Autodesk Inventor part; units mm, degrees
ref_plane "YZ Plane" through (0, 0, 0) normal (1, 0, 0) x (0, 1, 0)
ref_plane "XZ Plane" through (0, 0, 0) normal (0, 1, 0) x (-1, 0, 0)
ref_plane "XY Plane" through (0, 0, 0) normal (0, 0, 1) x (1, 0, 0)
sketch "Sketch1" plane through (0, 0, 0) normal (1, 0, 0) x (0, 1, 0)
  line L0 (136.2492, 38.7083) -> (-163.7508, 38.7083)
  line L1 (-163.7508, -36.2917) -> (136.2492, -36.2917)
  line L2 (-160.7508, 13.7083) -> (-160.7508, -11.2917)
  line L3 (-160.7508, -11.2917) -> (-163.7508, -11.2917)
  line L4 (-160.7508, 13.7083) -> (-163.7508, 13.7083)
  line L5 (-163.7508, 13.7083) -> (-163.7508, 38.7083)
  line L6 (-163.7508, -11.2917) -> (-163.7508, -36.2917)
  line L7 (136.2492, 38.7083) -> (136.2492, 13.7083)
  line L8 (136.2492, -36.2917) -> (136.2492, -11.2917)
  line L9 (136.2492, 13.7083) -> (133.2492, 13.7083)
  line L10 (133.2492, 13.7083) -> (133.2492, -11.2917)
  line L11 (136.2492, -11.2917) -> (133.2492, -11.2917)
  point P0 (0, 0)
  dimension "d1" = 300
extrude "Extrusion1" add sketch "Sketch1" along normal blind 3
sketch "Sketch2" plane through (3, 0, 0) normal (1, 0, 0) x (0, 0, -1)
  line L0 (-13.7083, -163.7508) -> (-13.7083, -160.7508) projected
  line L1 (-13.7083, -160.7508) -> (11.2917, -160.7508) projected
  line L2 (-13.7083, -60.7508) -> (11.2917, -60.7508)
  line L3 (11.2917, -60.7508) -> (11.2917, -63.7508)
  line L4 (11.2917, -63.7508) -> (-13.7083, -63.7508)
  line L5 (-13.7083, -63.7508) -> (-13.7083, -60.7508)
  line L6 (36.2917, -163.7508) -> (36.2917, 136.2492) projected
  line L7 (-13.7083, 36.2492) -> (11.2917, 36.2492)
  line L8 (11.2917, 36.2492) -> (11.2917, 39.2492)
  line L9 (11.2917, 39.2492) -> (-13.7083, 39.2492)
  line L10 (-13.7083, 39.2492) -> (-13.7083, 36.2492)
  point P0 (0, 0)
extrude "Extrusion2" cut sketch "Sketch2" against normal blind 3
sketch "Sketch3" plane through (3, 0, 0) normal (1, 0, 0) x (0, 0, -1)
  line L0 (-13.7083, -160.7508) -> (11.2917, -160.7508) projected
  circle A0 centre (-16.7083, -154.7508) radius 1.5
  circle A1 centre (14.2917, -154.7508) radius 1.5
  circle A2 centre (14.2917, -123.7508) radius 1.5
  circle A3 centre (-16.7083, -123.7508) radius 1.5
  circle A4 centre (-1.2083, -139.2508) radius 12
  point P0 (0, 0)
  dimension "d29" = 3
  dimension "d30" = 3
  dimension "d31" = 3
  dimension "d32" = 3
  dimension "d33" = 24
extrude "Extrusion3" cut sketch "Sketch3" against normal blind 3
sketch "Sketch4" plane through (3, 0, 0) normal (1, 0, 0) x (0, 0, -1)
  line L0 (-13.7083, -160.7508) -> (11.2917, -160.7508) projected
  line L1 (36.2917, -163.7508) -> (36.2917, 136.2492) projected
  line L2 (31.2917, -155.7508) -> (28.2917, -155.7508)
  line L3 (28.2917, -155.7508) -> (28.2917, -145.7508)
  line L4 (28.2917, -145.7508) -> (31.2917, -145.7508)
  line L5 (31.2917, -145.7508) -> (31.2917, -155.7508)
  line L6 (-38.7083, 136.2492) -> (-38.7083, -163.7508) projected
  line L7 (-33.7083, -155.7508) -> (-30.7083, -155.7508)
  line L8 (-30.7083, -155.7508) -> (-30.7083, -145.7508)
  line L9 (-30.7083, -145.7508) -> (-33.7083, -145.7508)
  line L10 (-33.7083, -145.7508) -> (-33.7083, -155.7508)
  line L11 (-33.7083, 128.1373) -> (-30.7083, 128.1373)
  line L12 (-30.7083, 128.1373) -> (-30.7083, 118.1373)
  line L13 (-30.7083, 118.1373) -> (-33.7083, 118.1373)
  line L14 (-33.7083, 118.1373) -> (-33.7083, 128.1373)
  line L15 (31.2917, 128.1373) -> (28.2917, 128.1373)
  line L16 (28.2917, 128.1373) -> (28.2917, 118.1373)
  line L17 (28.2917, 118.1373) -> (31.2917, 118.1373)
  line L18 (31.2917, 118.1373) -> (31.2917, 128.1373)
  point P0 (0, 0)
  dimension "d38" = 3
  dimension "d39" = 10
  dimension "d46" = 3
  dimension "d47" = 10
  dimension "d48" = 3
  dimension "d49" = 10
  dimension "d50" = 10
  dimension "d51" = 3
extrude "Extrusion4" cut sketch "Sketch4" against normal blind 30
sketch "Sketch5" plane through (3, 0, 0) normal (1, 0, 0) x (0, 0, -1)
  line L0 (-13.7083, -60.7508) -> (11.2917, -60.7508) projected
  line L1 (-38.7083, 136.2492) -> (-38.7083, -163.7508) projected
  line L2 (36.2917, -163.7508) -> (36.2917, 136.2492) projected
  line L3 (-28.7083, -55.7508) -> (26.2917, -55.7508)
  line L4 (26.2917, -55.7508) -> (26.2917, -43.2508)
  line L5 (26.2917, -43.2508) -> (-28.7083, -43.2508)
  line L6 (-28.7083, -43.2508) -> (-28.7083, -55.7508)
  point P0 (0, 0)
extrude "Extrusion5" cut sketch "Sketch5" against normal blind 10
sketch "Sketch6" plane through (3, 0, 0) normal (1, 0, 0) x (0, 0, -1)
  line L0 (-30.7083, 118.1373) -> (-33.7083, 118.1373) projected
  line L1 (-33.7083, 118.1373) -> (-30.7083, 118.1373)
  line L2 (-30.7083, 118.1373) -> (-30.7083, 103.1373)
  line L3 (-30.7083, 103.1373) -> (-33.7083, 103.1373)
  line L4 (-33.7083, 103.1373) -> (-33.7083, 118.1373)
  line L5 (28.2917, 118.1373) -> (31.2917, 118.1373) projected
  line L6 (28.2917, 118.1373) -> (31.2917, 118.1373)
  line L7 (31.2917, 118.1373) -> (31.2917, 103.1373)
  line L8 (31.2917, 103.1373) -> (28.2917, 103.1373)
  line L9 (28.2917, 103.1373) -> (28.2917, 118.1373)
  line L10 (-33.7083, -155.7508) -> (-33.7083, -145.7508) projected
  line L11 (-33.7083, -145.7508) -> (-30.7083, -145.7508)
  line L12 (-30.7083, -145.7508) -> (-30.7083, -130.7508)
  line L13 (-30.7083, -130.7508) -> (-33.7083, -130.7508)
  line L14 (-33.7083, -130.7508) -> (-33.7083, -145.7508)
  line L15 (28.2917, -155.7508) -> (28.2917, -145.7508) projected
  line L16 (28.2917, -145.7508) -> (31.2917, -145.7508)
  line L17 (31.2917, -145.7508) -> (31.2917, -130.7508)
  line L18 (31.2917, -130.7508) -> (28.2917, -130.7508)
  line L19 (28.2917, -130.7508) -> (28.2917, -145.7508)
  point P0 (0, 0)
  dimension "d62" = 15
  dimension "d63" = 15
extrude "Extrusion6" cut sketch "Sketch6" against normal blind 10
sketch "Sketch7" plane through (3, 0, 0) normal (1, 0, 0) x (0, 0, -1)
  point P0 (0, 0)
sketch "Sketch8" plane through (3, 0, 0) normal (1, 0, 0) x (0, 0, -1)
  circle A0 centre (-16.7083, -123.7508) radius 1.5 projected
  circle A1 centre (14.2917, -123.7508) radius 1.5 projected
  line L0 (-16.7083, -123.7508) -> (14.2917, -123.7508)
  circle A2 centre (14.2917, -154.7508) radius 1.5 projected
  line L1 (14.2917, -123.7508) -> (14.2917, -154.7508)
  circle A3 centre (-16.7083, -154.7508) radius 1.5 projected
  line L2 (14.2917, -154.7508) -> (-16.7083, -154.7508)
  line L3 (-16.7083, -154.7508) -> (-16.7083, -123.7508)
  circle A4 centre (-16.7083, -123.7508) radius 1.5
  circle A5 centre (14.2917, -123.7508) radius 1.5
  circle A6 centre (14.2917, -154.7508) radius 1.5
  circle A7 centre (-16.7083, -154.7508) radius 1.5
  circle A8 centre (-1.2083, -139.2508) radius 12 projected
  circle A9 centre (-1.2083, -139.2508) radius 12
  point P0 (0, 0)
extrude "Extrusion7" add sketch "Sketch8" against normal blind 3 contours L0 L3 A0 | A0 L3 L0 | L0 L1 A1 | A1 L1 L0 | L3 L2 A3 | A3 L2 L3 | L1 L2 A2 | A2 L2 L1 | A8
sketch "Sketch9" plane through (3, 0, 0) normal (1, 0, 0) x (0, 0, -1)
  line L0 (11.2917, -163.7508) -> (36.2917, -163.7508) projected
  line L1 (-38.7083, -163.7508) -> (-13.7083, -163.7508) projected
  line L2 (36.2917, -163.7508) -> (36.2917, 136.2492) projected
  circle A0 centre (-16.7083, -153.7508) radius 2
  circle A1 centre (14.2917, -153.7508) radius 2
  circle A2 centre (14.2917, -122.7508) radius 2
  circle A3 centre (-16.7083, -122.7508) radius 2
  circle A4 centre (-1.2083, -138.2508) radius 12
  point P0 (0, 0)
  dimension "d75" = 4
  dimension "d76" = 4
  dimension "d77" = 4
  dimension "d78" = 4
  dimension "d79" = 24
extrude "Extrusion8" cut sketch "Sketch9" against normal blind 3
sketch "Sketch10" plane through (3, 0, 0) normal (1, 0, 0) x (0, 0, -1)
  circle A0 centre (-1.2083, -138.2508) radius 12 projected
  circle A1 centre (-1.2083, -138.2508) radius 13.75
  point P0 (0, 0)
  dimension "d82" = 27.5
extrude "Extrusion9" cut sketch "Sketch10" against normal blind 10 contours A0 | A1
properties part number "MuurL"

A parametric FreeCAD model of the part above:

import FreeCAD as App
import Part
import Sketcher


def add_polygon(sketch, points):
    """Adds a closed chain of lines whose ends are joined by coincident constraints."""
    first, n = sketch.GeometryCount, len(points)
    for a, b in zip(points, points[1:] + points[:1]):
        sketch.addGeometry(Part.LineSegment(App.Vector(*a, 0), App.Vector(*b, 0)), False)
    for i in range(n):
        sketch.addConstraint(Sketcher.Constraint("Coincident", first + i, 2, first + (i + 1) % n, 1))

doc = App.newDocument("Part")
body = doc.addObject("PartDesign::Body", "Body")

# Sketch on YZ plane
sketch1 = body.newObject("Sketcher::SketchObject", "Sketch")
sketch1.AttachmentSupport = (doc.getObject("YZ_Plane"), [""])
sketch1.MapMode = "FlatFace"
add_polygon(sketch1, [(136.2, 13.7), (136.2, 38.7), (-163.8, 38.7), (-163.8, 13.7), (-160.8, 13.7), (-160.8, -11.3), (-163.8, -11.3), (-163.8, -36.3), (136.2, -36.3), (136.2, -11.3), (133.2, -11.3), (133.2, 13.7)])  # lines 0-11
sketch1.addConstraint(Sketcher.Constraint("Vertical", 0))
sketch1.addConstraint(Sketcher.Constraint("Horizontal", 1))
sketch1.addConstraint(Sketcher.Constraint("Vertical", 2))
sketch1.addConstraint(Sketcher.Constraint("Horizontal", 3))
sketch1.addConstraint(Sketcher.Constraint("Vertical", 4))
sketch1.addConstraint(Sketcher.Constraint("Horizontal", 5))
sketch1.addConstraint(Sketcher.Constraint("Vertical", 6))
sketch1.addConstraint(Sketcher.Constraint("Horizontal", 7))
sketch1.addConstraint(Sketcher.Constraint("Vertical", 8))
sketch1.addConstraint(Sketcher.Constraint("Horizontal", 9))
sketch1.addConstraint(Sketcher.Constraint("Vertical", 10))
sketch1.addConstraint(Sketcher.Constraint("Horizontal", 11))
sketch1.addConstraint(Sketcher.Constraint("Horizontal", 5, 2, 8, 2))
sketch1.addConstraint(Sketcher.Constraint("Horizontal", 3, 2, 10, 2))
sketch1.addConstraint(Sketcher.Constraint("Vertical", 2, 2, 5, 2))
sketch1.addConstraint(Sketcher.Constraint("Vertical", 0, 2, 7, 2))
sketch1.addConstraint(Sketcher.Constraint("Equal", 5, 9))
sketch1.addConstraint(Sketcher.Constraint("Equal", 2, 4))
sketch1.addConstraint(Sketcher.Constraint("Equal", 4, 6))
sketch1.addConstraint(Sketcher.Constraint("DistanceX", 1, 2, 1, 1, 300.0))
sketch1.addConstraint(Sketcher.Constraint("DistanceX", 3, 1, 3, 2, 3.0))
sketch1.addConstraint(Sketcher.Constraint("DistanceY", 0, 1, 0, 2, 25.0))
sketch1.addConstraint(Sketcher.Constraint("DistanceX", -1, 1, 0, 2, 136.2492))
sketch1.addConstraint(Sketcher.Constraint("DistanceY", -1, 1, 0, 2, 38.7083))
pad1 = body.newObject("PartDesign::Pad", "Pad")
pad1.Profile = sketch1
pad1.Length = 3

# Sketch on YZ plane
sketch2 = body.newObject("Sketcher::SketchObject", "Sketch001")
sketch2.AttachmentSupport = (doc.getObject("YZ_Plane"), [""])
sketch2.MapMode = "FlatFace"
sketch2.AttachmentOffset = App.Placement(App.Vector(0, 0, 3), App.Rotation())
add_polygon(sketch2, [(-60.8, -11.3), (-60.8, 13.7), (-63.8, 13.7), (-63.8, -11.3)])  # lines 0-3
add_polygon(sketch2, [(39.2, 13.7), (36.2, 13.7), (36.2, -11.3), (39.2, -11.3)])  # lines 4-7
sketch2.addConstraint(Sketcher.Constraint("Vertical", 0))
sketch2.addConstraint(Sketcher.Constraint("Horizontal", 1))
sketch2.addConstraint(Sketcher.Constraint("Vertical", 2))
sketch2.addConstraint(Sketcher.Constraint("Horizontal", 3))
sketch2.addConstraint(Sketcher.Constraint("Horizontal", 4))
sketch2.addConstraint(Sketcher.Constraint("Vertical", 5))
sketch2.addConstraint(Sketcher.Constraint("Horizontal", 6))
sketch2.addConstraint(Sketcher.Constraint("Vertical", 7))
sketch2.addConstraint(Sketcher.Constraint("Horizontal", 1, 2, 4, 2))
sketch2.addConstraint(Sketcher.Constraint("Horizontal", 3, 2, 5, 2))
sketch2.addConstraint(Sketcher.Constraint("Equal", 3, 4))
sketch2.addConstraint(Sketcher.Constraint("DistanceX", 1, 2, 1, 1, 3.0))
sketch2.addConstraint(Sketcher.Constraint("DistanceY", 0, 1, 0, 2, 25.0))
sketch2.addConstraint(Sketcher.Constraint("DistanceX", 0, 2, 4, 2, 97.0))
sketch2.addConstraint(Sketcher.Constraint("DistanceX", 0, 2, -1, 1, 60.7508))
sketch2.addConstraint(Sketcher.Constraint("DistanceY", -1, 1, 0, 2, 13.7083))
pocket1 = body.newObject("PartDesign::Pocket", "Pocket")
pocket1.Profile = sketch2
pocket1.Length = 3

# Sketch on YZ plane
sketch3 = body.newObject("Sketcher::SketchObject", "Sketch002")
sketch3.AttachmentSupport = (doc.getObject("YZ_Plane"), [""])
sketch3.MapMode = "FlatFace"
sketch3.AttachmentOffset = App.Placement(App.Vector(0, 0, 3), App.Rotation())
sketch3.addGeometry(Part.Circle(App.Vector(-154.8, 16.7, 0), App.Vector(0, 0, 1), 1.5), False)
sketch3.addGeometry(Part.Circle(App.Vector(-154.8, -14.3, 0), App.Vector(0, 0, 1), 1.5), False)
sketch3.addGeometry(Part.Circle(App.Vector(-123.8, -14.3, 0), App.Vector(0, 0, 1), 1.5), False)
sketch3.addGeometry(Part.Circle(App.Vector(-123.8, 16.7, 0), App.Vector(0, 0, 1), 1.5), False)
sketch3.addGeometry(Part.Circle(App.Vector(-139.3, 1.2, 0), App.Vector(0, 0, 1), 12), False)
sketch3.addConstraint(Sketcher.Constraint("Equal", 0, 1))
sketch3.addConstraint(Sketcher.Constraint("Equal", 1, 2))
sketch3.addConstraint(Sketcher.Constraint("Equal", 2, 3))
sketch3.addConstraint(Sketcher.Constraint("Horizontal", 1, 3, 2, 3))
sketch3.addConstraint(Sketcher.Constraint("Horizontal", 0, 3, 3, 3))
sketch3.addConstraint(Sketcher.Constraint("Vertical", 0, 3, 1, 3))
sketch3.addConstraint(Sketcher.Constraint("Vertical", 2, 3, 3, 3))
sketch3.addConstraint(Sketcher.Constraint("Diameter", 0, 3.0))
sketch3.addConstraint(Sketcher.Constraint("Diameter", 4, 24.0))
sketch3.addConstraint(Sketcher.Constraint("DistanceY", 1, 3, 0, 3, 31.0))
sketch3.addConstraint(Sketcher.Constraint("DistanceX", 1, 3, 2, 3, 31.0))
sketch3.addConstraint(Sketcher.Constraint("DistanceX", 1, 3, 4, 3, 15.5))
sketch3.addConstraint(Sketcher.Constraint("DistanceY", 1, 3, 4, 3, 15.5))
sketch3.addConstraint(Sketcher.Constraint("DistanceX", 0, 3, -1, 1, 154.7508))
sketch3.addConstraint(Sketcher.Constraint("DistanceY", -1, 1, 0, 3, 16.7083))
pocket2 = body.newObject("PartDesign::Pocket", "Pocket001")
pocket2.Profile = sketch3
pocket2.Length = 3

# Sketch on YZ plane
sketch4 = body.newObject("Sketcher::SketchObject", "Sketch003")
sketch4.AttachmentSupport = (doc.getObject("YZ_Plane"), [""])
sketch4.MapMode = "FlatFace"
sketch4.AttachmentOffset = App.Placement(App.Vector(0, 0, 3), App.Rotation())
add_polygon(sketch4, [(-155.8, -28.3), (-155.8, -31.3), (-145.8, -31.3), (-145.8, -28.3)])  # lines 0-3
add_polygon(sketch4, [(-145.8, 33.7), (-155.8, 33.7), (-155.8, 30.7), (-145.8, 30.7)])  # lines 4-7
add_polygon(sketch4, [(128.1, 30.7), (128.1, 33.7), (118.1, 33.7), (118.1, 30.7)])  # lines 8-11
add_polygon(sketch4, [(118.1, -31.3), (128.1, -31.3), (128.1, -28.3), (118.1, -28.3)])  # lines 12-15
sketch4.addConstraint(Sketcher.Constraint("Vertical", 0))
sketch4.addConstraint(Sketcher.Constraint("Horizontal", 1))
sketch4.addConstraint(Sketcher.Constraint("Vertical", 2))
sketch4.addConstraint(Sketcher.Constraint("Horizontal", 3))
sketch4.addConstraint(Sketcher.Constraint("Horizontal", 4))
sketch4.addConstraint(Sketcher.Constraint("Vertical", 5))
sketch4.addConstraint(Sketcher.Constraint("Horizontal", 6))
sketch4.addConstraint(Sketcher.Constraint("Vertical", 7))
sketch4.addConstraint(Sketcher.Constraint("Vertical", 8))
sketch4.addConstraint(Sketcher.Constraint("Horizontal", 9))
sketch4.addConstraint(Sketcher.Constraint("Vertical", 10))
sketch4.addConstraint(Sketcher.Constraint("Horizontal", 11))
sketch4.addConstraint(Sketcher.Constraint("Horizontal", 12))
sketch4.addConstraint(Sketcher.Constraint("Vertical", 13))
sketch4.addConstraint(Sketcher.Constraint("Horizontal", 14))
sketch4.addConstraint(Sketcher.Constraint("Vertical", 15))
sketch4.addConstraint(Sketcher.Constraint("Horizontal", 7, 2, 8, 2))
sketch4.addConstraint(Sketcher.Constraint("Horizontal", 6, 2, 10, 2))
sketch4.addConstraint(Sketcher.Constraint("Horizontal", 1, 2, 12, 2))
sketch4.addConstraint(Sketcher.Constraint("Horizontal", 3, 2, 13, 2))
sketch4.addConstraint(Sketcher.Constraint("Vertical", 3, 2, 4, 2))
sketch4.addConstraint(Sketcher.Constraint("Vertical", 2, 2, 6, 2))
sketch4.addConstraint(Sketcher.Constraint("Vertical", 11, 2, 12, 2))
sketch4.addConstraint(Sketcher.Constraint("Vertical", 10, 2, 14, 2))
sketch4.addConstraint(Sketcher.Constraint("Equal", 6, 9))
sketch4.addConstraint(Sketcher.Constraint("Equal", 2, 5))
sketch4.addConstraint(Sketcher.Constraint("DistanceX", 1, 1, 1, 2, 10.0))
sketch4.addConstraint(Sketcher.Constraint("DistanceY", 0, 2, 0, 1, 3.0))
sketch4.addConstraint(Sketcher.Constraint("DistanceY", 3, 2, 4, 2, 62.0))
sketch4.addConstraint(Sketcher.Constraint("DistanceX", 7, 2, 8, 2, 273.888))
sketch4.addConstraint(Sketcher.Constraint("DistanceX", 0, 2, -1, 1, 155.7508))
sketch4.addConstraint(Sketcher.Constraint("DistanceY", 0, 2, -1, 1, 31.2917))
pocket3 = body.newObject("PartDesign::Pocket", "Pocket002")
pocket3.Profile = sketch4
pocket3.Length = 30

# Sketch on YZ plane
sketch5 = body.newObject("Sketcher::SketchObject", "Sketch004")
sketch5.AttachmentSupport = (doc.getObject("YZ_Plane"), [""])
sketch5.MapMode = "FlatFace"
sketch5.AttachmentOffset = App.Placement(App.Vector(0, 0, 3), App.Rotation())
add_polygon(sketch5, [(-43, 29), (-56, 29), (-56, -26), (-43, -26)])  # lines 0-3
sketch5.addConstraint(Sketcher.Constraint("Horizontal", 0))
sketch5.addConstraint(Sketcher.Constraint("Vertical", 1))
sketch5.addConstraint(Sketcher.Constraint("Horizontal", 2))
sketch5.addConstraint(Sketcher.Constraint("Vertical", 3))
sketch5.addConstraint(Sketcher.Constraint("DistanceY", 1, 2, 1, 1, 55.0))
sketch5.addConstraint(Sketcher.Constraint("DistanceX", 0, 2, 0, 1, 12.5))
sketch5.addConstraint(Sketcher.Constraint("DistanceX", 0, 2, -1, 1, 55.7508))
sketch5.addConstraint(Sketcher.Constraint("DistanceY", -1, 1, 0, 2, 28.7083))
pocket4 = body.newObject("PartDesign::Pocket", "Pocket003")
pocket4.Profile = sketch5
pocket4.Length = 10

# Sketch on YZ plane
sketch6 = body.newObject("Sketcher::SketchObject", "Sketch005")
sketch6.AttachmentSupport = (doc.getObject("YZ_Plane"), [""])
sketch6.MapMode = "FlatFace"
sketch6.AttachmentOffset = App.Placement(App.Vector(0, 0, 3), App.Rotation())
add_polygon(sketch6, [(103.1, 30.7), (118.1, 30.7), (118.1, 33.7), (103.1, 33.7)])  # lines 0-3
add_polygon(sketch6, [(118.1, -31.3), (118.1, -28.3), (103.1, -28.3), (103.1, -31.3)])  # lines 4-7
add_polygon(sketch6, [(-130.8, 33.7), (-145.8, 33.7), (-145.8, 30.7), (-130.8, 30.7)])  # lines 8-11
add_polygon(sketch6, [(-130.8, -28.3), (-145.8, -28.3), (-145.8, -31.3), (-130.8, -31.3)])  # lines 12-15
sketch6.addConstraint(Sketcher.Constraint("Horizontal", 0))
sketch6.addConstraint(Sketcher.Constraint("Vertical", 1))
sketch6.addConstraint(Sketcher.Constraint("Horizontal", 2))
sketch6.addConstraint(Sketcher.Constraint("Vertical", 3))
sketch6.addConstraint(Sketcher.Constraint("Vertical", 4))
sketch6.addConstraint(Sketcher.Constraint("Horizontal", 5))
sketch6.addConstraint(Sketcher.Constraint("Vertical", 6))
sketch6.addConstraint(Sketcher.Constraint("Horizontal", 7))
sketch6.addConstraint(Sketcher.Constraint("Horizontal", 8))
sketch6.addConstraint(Sketcher.Constraint("Vertical", 9))
sketch6.addConstraint(Sketcher.Constraint("Horizontal", 10))
sketch6.addConstraint(Sketcher.Constraint("Vertical", 11))
sketch6.addConstraint(Sketcher.Constraint("Horizontal", 12))
sketch6.addConstraint(Sketcher.Constraint("Vertical", 13))
sketch6.addConstraint(Sketcher.Constraint("Horizontal", 14))
sketch6.addConstraint(Sketcher.Constraint("Vertical", 15))
sketch6.addConstraint(Sketcher.Constraint("Horizontal", 2, 2, 8, 2))
sketch6.addConstraint(Sketcher.Constraint("Horizontal", 3, 2, 9, 2))
sketch6.addConstraint(Sketcher.Constraint("Horizontal", 5, 2, 12, 2))
sketch6.addConstraint(Sketcher.Constraint("Horizontal", 7, 2, 13, 2))
sketch6.addConstraint(Sketcher.Constraint("Vertical", 1, 2, 4, 2))
sketch6.addConstraint(Sketcher.Constraint("Vertical", 3, 2, 5, 2))
sketch6.addConstraint(Sketcher.Constraint("Vertical", 9, 2, 12, 2))
sketch6.addConstraint(Sketcher.Constraint("Vertical", 11, 2, 14, 2))
sketch6.addConstraint(Sketcher.Constraint("Equal", 7, 8))
sketch6.addConstraint(Sketcher.Constraint("Equal", 3, 4))
sketch6.addConstraint(Sketcher.Constraint("DistanceX", 0, 1, 0, 2, 15.0))
sketch6.addConstraint(Sketcher.Constraint("DistanceY", 1, 1, 1, 2, 3.0))
sketch6.addConstraint(Sketcher.Constraint("DistanceY", 4, 2, 0, 2, 59.0))
sketch6.addConstraint(Sketcher.Constraint("DistanceX", 8, 2, 2, 2, 248.888))
sketch6.addConstraint(Sketcher.Constraint("DistanceX", -1, 1, 0, 2, 118.1373))
sketch6.addConstraint(Sketcher.Constraint("DistanceY", -1, 1, 0, 2, 30.7083))
pocket5 = body.newObject("PartDesign::Pocket", "Pocket004")
pocket5.Profile = sketch6
pocket5.Length = 10

# Sketch on YZ plane
sketch7 = body.newObject("Sketcher::SketchObject", "Sketch006")
sketch7.AttachmentSupport = (doc.getObject("YZ_Plane"), [""])
sketch7.MapMode = "FlatFace"
sketch7.AttachmentOffset = App.Placement(App.Vector(0, 0, 3), App.Rotation())
sketch7.addGeometry(Part.Circle(App.Vector(-123.8, 16.7, 0), App.Vector(0, 0, 1), 1.5), False)
sketch7.addGeometry(Part.Circle(App.Vector(-123.8, -14.3, 0), App.Vector(0, 0, 1), 1.5), False)
sketch7.addGeometry(Part.Circle(App.Vector(-154.8, 16.7, 0), App.Vector(0, 0, 1), 1.5), False)
sketch7.addGeometry(Part.Circle(App.Vector(-154.8, -14.3, 0), App.Vector(0, 0, 1), 1.5), False)
sketch7.addGeometry(Part.Circle(App.Vector(-139.3, 1.2, 0), App.Vector(0, 0, 1), 12), False)
sketch7.addConstraint(Sketcher.Constraint("Equal", 0, 1))
sketch7.addConstraint(Sketcher.Constraint("Equal", 1, 2))
sketch7.addConstraint(Sketcher.Constraint("Equal", 2, 3))
sketch7.addConstraint(Sketcher.Constraint("Horizontal", 0, 3, 2, 3))
sketch7.addConstraint(Sketcher.Constraint("Horizontal", 1, 3, 3, 3))
sketch7.addConstraint(Sketcher.Constraint("Vertical", 0, 3, 1, 3))
sketch7.addConstraint(Sketcher.Constraint("Vertical", 2, 3, 3, 3))
sketch7.addConstraint(Sketcher.Constraint("Diameter", 0, 3.0))
sketch7.addConstraint(Sketcher.Constraint("Diameter", 4, 24.0))
sketch7.addConstraint(Sketcher.Constraint("DistanceY", 1, 3, 0, 3, 31.0))
sketch7.addConstraint(Sketcher.Constraint("DistanceX", 2, 3, 0, 3, 31.0))
sketch7.addConstraint(Sketcher.Constraint("DistanceX", 4, 3, 1, 3, 15.5))
sketch7.addConstraint(Sketcher.Constraint("DistanceY", 1, 3, 4, 3, 15.5))
sketch7.addConstraint(Sketcher.Constraint("DistanceX", 0, 3, -1, 1, 123.7508))
sketch7.addConstraint(Sketcher.Constraint("DistanceY", -1, 1, 0, 3, 16.7083))
pad2 = body.newObject("PartDesign::Pad", "Pad001")
pad2.Profile = sketch7
pad2.Length = 3
pad2.Reversed = True

# Sketch on YZ plane
sketch8 = body.newObject("Sketcher::SketchObject", "Sketch007")
sketch8.AttachmentSupport = (doc.getObject("YZ_Plane"), [""])
sketch8.MapMode = "FlatFace"
sketch8.AttachmentOffset = App.Placement(App.Vector(0, 0, 3), App.Rotation())
sketch8.addGeometry(Part.Circle(App.Vector(-153.8, 16.7, 0), App.Vector(0, 0, 1), 2), False)
sketch8.addGeometry(Part.Circle(App.Vector(-153.8, -14.3, 0), App.Vector(0, 0, 1), 2), False)
sketch8.addGeometry(Part.Circle(App.Vector(-122.8, -14.3, 0), App.Vector(0, 0, 1), 2), False)
sketch8.addGeometry(Part.Circle(App.Vector(-122.8, 16.7, 0), App.Vector(0, 0, 1), 2), False)
sketch8.addGeometry(Part.Circle(App.Vector(-138.3, 1.2, 0), App.Vector(0, 0, 1), 12), False)
sketch8.addConstraint(Sketcher.Constraint("Equal", 0, 1))
sketch8.addConstraint(Sketcher.Constraint("Equal", 1, 2))
sketch8.addConstraint(Sketcher.Constraint("Equal", 2, 3))
sketch8.addConstraint(Sketcher.Constraint("Horizontal", 1, 3, 2, 3))
sketch8.addConstraint(Sketcher.Constraint("Horizontal", 0, 3, 3, 3))
sketch8.addConstraint(Sketcher.Constraint("Vertical", 0, 3, 1, 3))
sketch8.addConstraint(Sketcher.Constraint("Vertical", 2, 3, 3, 3))
sketch8.addConstraint(Sketcher.Constraint("Diameter", 0, 4.0))
sketch8.addConstraint(Sketcher.Constraint("Diameter", 4, 24.0))
sketch8.addConstraint(Sketcher.Constraint("DistanceY", 1, 3, 0, 3, 31.0))
sketch8.addConstraint(Sketcher.Constraint("DistanceX", 1, 3, 2, 3, 31.0))
sketch8.addConstraint(Sketcher.Constraint("DistanceX", 1, 3, 4, 3, 15.5))
sketch8.addConstraint(Sketcher.Constraint("DistanceY", 1, 3, 4, 3, 15.5))
sketch8.addConstraint(Sketcher.Constraint("DistanceX", 0, 3, -1, 1, 153.7508))
sketch8.addConstraint(Sketcher.Constraint("DistanceY", -1, 1, 0, 3, 16.7083))
pocket6 = body.newObject("PartDesign::Pocket", "Pocket005")
pocket6.Profile = sketch8
pocket6.Length = 3

# Sketch on YZ plane
sketch9 = body.newObject("Sketcher::SketchObject", "Sketch008")
sketch9.AttachmentSupport = (doc.getObject("YZ_Plane"), [""])
sketch9.MapMode = "FlatFace"
sketch9.AttachmentOffset = App.Placement(App.Vector(0, 0, 3), App.Rotation())
sketch9.addGeometry(Part.Circle(App.Vector(-138, 1, 0), App.Vector(0, 0, 1), 14), False)
sketch9.addConstraint(Sketcher.Constraint("Diameter", 0, 27.5))
sketch9.addConstraint(Sketcher.Constraint("DistanceX", 0, 3, -1, 1, 138.2508))
sketch9.addConstraint(Sketcher.Constraint("DistanceY", -1, 1, 0, 3, 1.2083))
pocket7 = body.newObject("PartDesign::Pocket", "Pocket006")
pocket7.Profile = sketch9
pocket7.Length = 10

doc.recompute()
